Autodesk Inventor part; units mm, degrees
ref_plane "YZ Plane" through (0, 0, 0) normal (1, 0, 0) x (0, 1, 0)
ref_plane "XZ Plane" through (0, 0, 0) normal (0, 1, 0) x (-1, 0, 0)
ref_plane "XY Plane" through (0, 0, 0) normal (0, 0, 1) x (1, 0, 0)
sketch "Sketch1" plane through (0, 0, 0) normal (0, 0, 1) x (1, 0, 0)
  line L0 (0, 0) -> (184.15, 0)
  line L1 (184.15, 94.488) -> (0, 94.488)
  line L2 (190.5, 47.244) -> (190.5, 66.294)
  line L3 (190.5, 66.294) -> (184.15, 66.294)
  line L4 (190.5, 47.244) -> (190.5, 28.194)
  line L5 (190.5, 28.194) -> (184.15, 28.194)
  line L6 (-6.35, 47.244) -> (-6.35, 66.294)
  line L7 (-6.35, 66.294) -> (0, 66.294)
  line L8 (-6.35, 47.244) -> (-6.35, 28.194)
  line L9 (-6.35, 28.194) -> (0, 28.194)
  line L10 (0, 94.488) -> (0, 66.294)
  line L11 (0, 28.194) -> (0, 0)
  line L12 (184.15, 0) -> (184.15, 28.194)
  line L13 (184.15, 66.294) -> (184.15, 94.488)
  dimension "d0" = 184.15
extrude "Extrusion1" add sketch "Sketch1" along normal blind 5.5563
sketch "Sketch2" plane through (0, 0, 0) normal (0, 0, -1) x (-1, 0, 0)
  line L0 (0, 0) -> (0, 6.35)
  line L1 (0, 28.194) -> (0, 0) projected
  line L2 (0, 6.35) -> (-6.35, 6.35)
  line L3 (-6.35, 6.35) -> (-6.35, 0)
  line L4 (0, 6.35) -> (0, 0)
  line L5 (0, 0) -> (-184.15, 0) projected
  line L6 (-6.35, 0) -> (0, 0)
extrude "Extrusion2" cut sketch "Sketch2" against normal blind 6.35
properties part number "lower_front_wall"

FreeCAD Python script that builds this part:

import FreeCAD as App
import Part
import Sketcher
Q = App.Units.Quantity

doc = App.newDocument("Part")
body = doc.addObject("PartDesign::Body", "Body")

# Sketch on XY plane
sketch1 = body.newObject("Sketcher::SketchObject", "Sketch")
sketch1.AttachmentSupport = (doc.getObject("XY_Plane"), [""])
sketch1.MapMode = "FlatFace"
sketch1.addGeometry([
    Part.LineSegment(App.Vector(0, 28, 0), App.Vector(0, 0, 0)),  # 0
    Part.LineSegment(App.Vector(0, 0, 0), App.Vector(184, 0, 0)),  # 1
    Part.LineSegment(App.Vector(184, 0, 0), App.Vector(184, 28, 0)),  # 2
    Part.LineSegment(App.Vector(184, 28, 0), App.Vector(190, 28, 0)),  # 3
    Part.LineSegment(App.Vector(190, 28, 0), App.Vector(190, 66, 0)),  # 4
    Part.LineSegment(App.Vector(190, 66, 0), App.Vector(184, 66, 0)),  # 5
    Part.LineSegment(App.Vector(184, 66, 0), App.Vector(184, 94, 0)),  # 6
    Part.LineSegment(App.Vector(184, 94, 0), App.Vector(0, 94, 0)),  # 7
    Part.LineSegment(App.Vector(0, 94, 0), App.Vector(0, 66, 0)),  # 8
    Part.LineSegment(App.Vector(0, 66, 0), App.Vector(-6, 66, 0)),  # 9
    Part.LineSegment(App.Vector(-6, 66, 0), App.Vector(-6, 28, 0)),  # 10
    Part.LineSegment(App.Vector(-6, 28, 0), App.Vector(0, 28, 0)),  # 11
], False)
sketch1.addConstraint([
    Sketcher.Constraint("Coincident", 0, 2, 1, 1),
    Sketcher.Constraint("Coincident", 1, 2, 2, 1),
    Sketcher.Constraint("Coincident", 2, 2, 3, 1),
    Sketcher.Constraint("Coincident", 3, 2, 4, 1),
    Sketcher.Constraint("Coincident", 4, 2, 5, 1),
    Sketcher.Constraint("Coincident", 5, 2, 6, 1),
    Sketcher.Constraint("Coincident", 6, 2, 7, 1),
    Sketcher.Constraint("Coincident", 7, 2, 8, 1),
    Sketcher.Constraint("Coincident", 8, 2, 9, 1),
    Sketcher.Constraint("Coincident", 9, 2, 10, 1),
    Sketcher.Constraint("Coincident", 10, 2, 11, 1),
    Sketcher.Constraint("Coincident", 11, 2, 0, 1),
    Sketcher.Constraint("Vertical", 0),
    Sketcher.Constraint("Horizontal", 1),
    Sketcher.Constraint("Vertical", 2),
    Sketcher.Constraint("Horizontal", 3),
    Sketcher.Constraint("Vertical", 4),
    Sketcher.Constraint("Horizontal", 5),
    Sketcher.Constraint("Vertical", 6),
    Sketcher.Constraint("Horizontal", 7),
    Sketcher.Constraint("Vertical", 8),
    Sketcher.Constraint("Horizontal", 9),
    Sketcher.Constraint("Vertical", 10),
    Sketcher.Constraint("Horizontal", 11),
    Sketcher.Constraint("Coincident", 0, 2, -1, 1),
    Sketcher.Constraint("PointOnObject", 7, 2, -2),
    Sketcher.Constraint("Horizontal", 5, 2, 8, 2),
    Sketcher.Constraint("Horizontal", 3, 2, 10, 2),
    Sketcher.Constraint("Vertical", 2, 2, 5, 2),
    Sketcher.Constraint("Equal", 5, 9),
    Sketcher.Constraint("Equal", 2, 6),
    Sketcher.Constraint("DistanceX", 1, 1, 1, 2, Q("7.25 in")),
    Sketcher.Constraint("DistanceY", 4, 1, 4, 2, Q("1.5 in")),
    Sketcher.Constraint("DistanceX", 3, 1, 3, 2, Q("0.25 in")),
    Sketcher.Constraint("DistanceY", 0, 2, 0, 1, Q("1.11 in")),
])
pad1 = body.newObject("PartDesign::Pad", "Pad")
pad1.Profile = sketch1
pad1.Length = Q("0.218752 in")

# Sketch on XY plane
sketch2 = body.newObject("Sketcher::SketchObject", "Sketch001")
sketch2.AttachmentSupport = (doc.getObject("XY_Plane"), [""])
sketch2.MapMode = "FlatFace"
sketch2.addGeometry([
    Part.LineSegment(App.Vector(6, 0, 0), App.Vector(0, 0, 0)),
    Part.LineSegment(App.Vector(0, 0, 0), App.Vector(0, 6, 0)),
    Part.LineSegment(App.Vector(0, 6, 0), App.Vector(6, 6, 0)),
    Part.LineSegment(App.Vector(6, 6, 0), App.Vector(6, 0, 0)),
], False)
sketch2.addConstraint([
    Sketcher.Constraint("Coincident", 0, 2, 1, 1),
    Sketcher.Constraint("Coincident", 1, 2, 2, 1),
    Sketcher.Constraint("Coincident", 2, 2, 3, 1),
    Sketcher.Constraint("Coincident", 3, 2, 0, 1),
    Sketcher.Constraint("Horizontal", 0),
    Sketcher.Constraint("Vertical", 1),
    Sketcher.Constraint("Horizontal", 2),
    Sketcher.Constraint("Vertical", 3),
    Sketcher.Constraint("Coincident", 0, 2, -1, 1),
    Sketcher.Constraint("Equal", 2, 1),
    Sketcher.Constraint("DistanceX", 0, 2, 0, 1, Q("0.25 in")),
])
pocket1 = body.newObject("PartDesign::Pocket", "Pocket")
pocket1.Profile = sketch2
pocket1.Length = Q("0.25 in")
pocket1.Reversed = True

doc.recompute()
